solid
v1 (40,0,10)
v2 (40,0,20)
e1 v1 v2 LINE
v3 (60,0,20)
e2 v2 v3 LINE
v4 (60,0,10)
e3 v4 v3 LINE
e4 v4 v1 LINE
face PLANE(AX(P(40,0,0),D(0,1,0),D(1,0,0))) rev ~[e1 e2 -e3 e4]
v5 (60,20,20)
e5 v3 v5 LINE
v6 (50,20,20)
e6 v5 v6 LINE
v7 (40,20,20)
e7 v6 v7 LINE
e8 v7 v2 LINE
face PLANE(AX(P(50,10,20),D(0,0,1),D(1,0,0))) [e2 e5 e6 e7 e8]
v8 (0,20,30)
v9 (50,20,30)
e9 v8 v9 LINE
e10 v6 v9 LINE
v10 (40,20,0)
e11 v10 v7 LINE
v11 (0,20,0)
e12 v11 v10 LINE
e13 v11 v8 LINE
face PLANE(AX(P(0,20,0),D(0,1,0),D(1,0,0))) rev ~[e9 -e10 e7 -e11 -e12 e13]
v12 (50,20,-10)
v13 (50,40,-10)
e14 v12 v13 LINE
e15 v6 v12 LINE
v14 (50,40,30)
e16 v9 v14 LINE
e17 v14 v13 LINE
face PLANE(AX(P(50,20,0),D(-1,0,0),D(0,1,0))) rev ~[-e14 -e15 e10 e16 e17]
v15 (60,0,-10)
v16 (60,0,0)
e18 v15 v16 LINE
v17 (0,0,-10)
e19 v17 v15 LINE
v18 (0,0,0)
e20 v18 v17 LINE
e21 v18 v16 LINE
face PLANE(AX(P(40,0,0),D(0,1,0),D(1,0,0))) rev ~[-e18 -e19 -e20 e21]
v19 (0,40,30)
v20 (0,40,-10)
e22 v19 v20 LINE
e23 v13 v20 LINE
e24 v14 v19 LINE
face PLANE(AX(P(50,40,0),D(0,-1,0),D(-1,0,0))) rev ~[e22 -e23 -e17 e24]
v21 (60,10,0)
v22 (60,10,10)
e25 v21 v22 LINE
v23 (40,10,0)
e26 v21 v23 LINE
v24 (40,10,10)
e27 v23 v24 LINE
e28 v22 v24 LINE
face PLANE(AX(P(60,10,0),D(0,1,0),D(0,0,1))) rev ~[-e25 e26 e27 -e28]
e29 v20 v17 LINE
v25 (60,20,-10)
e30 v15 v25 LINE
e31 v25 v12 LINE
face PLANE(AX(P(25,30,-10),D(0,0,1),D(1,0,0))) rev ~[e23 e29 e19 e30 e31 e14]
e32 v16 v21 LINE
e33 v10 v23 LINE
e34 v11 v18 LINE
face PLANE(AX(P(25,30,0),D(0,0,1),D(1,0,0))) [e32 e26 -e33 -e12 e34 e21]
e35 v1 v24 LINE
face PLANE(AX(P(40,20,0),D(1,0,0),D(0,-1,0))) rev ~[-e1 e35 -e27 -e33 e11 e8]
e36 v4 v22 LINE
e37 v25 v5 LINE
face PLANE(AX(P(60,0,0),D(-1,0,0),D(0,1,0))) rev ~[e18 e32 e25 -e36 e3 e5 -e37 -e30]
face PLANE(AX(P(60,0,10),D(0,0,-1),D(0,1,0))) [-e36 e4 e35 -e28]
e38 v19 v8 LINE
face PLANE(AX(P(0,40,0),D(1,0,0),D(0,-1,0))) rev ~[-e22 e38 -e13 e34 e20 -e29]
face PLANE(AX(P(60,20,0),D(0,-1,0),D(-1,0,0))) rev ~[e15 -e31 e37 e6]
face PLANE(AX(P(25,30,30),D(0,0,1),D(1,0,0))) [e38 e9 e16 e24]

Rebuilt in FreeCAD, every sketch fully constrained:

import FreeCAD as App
import Part
import Sketcher


def add_polygon(sketch, points):
    """Adds a closed chain of lines whose ends are joined by coincident constraints."""
    first, n = sketch.GeometryCount, len(points)
    for a, b in zip(points, points[1:] + points[:1]):
        sketch.addGeometry(Part.LineSegment(App.Vector(*a, 0), App.Vector(*b, 0)), False)
    for i in range(n):
        sketch.addConstraint(Sketcher.Constraint("Coincident", first + i, 2, first + (i + 1) % n, 1))

doc = App.newDocument("Part")
body = doc.addObject("PartDesign::Body", "Body")

# Sketch on XY plane
sketch1 = body.newObject("Sketcher::SketchObject", "Sketch")
sketch1.AttachmentSupport = (doc.getObject("XY_Plane"), [""])
sketch1.MapMode = "FlatFace"
add_polygon(sketch1, [(0, 40), (0, 0), (60, 0), (60, 20), (50, 20), (50, 40)])  # lines 0-5
sketch1.addConstraint(Sketcher.Constraint("Vertical", 0))
sketch1.addConstraint(Sketcher.Constraint("Horizontal", 1))
sketch1.addConstraint(Sketcher.Constraint("Vertical", 2))
sketch1.addConstraint(Sketcher.Constraint("Horizontal", 3))
sketch1.addConstraint(Sketcher.Constraint("Vertical", 4))
sketch1.addConstraint(Sketcher.Constraint("Horizontal", 5))
sketch1.addConstraint(Sketcher.Constraint("Coincident", 0, 2, -1, 1))
sketch1.addConstraint(Sketcher.Constraint("Equal", 2, 4))
sketch1.addConstraint(Sketcher.Constraint("DistanceX", 1, 1, 1, 2, 60.0))
sketch1.addConstraint(Sketcher.Constraint("DistanceX", 3, 2, 3, 1, 10.0))
sketch1.addConstraint(Sketcher.Constraint("DistanceY", 0, 2, 0, 1, 40.0))
pad1 = body.newObject("PartDesign::Pad", "Pad")
pad1.Profile = sketch1
pad1.Length = 10
pad1.Reversed = True

# Sketch on XY plane
sketch2 = body.newObject("Sketcher::SketchObject", "Sketch001")
sketch2.AttachmentSupport = (doc.getObject("XY_Plane"), [""])
sketch2.MapMode = "FlatFace"
add_polygon(sketch2, [(0, 40), (0, 20), (50, 20), (50, 40)])  # lines 0-3
sketch2.addConstraint(Sketcher.Constraint("Vertical", 0))
sketch2.addConstraint(Sketcher.Constraint("Horizontal", 1))
sketch2.addConstraint(Sketcher.Constraint("Vertical", 2))
sketch2.addConstraint(Sketcher.Constraint("Horizontal", 3))
sketch2.addConstraint(Sketcher.Constraint("PointOnObject", 0, 2, -2))
sketch2.addConstraint(Sketcher.Constraint("DistanceX", 1, 1, 1, 2, 50.0))
sketch2.addConstraint(Sketcher.Constraint("DistanceY", 0, 2, 0, 1, 20.0))
sketch2.addConstraint(Sketcher.Constraint("DistanceY", -1, 1, 0, 2, 20.0))
pad2 = body.newObject("PartDesign::Pad", "Pad001")
pad2.Profile = sketch2
pad2.Length = 30

# Sketch on XY plane
sketch3 = body.newObject("Sketcher::SketchObject", "Sketch002")
sketch3.AttachmentSupport = (doc.getObject("XY_Plane"), [""])
sketch3.MapMode = "FlatFace"
add_polygon(sketch3, [(40, 20), (40, 0), (60, 0), (60, 20)])  # lines 0-3
sketch3.addConstraint(Sketcher.Constraint("Vertical", 0))
sketch3.addConstraint(Sketcher.Constraint("Horizontal", 1))
sketch3.addConstraint(Sketcher.Constraint("Vertical", 2))
sketch3.addConstraint(Sketcher.Constraint("Horizontal", 3))
sketch3.addConstraint(Sketcher.Constraint("PointOnObject", 0, 2, -1))
sketch3.addConstraint(Sketcher.Constraint("Equal", 3, 0))
sketch3.addConstraint(Sketcher.Constraint("DistanceX", 1, 1, 1, 2, 20.0))
sketch3.addConstraint(Sketcher.Constraint("DistanceX", -1, 1, 0, 2, 40.0))
pad3 = body.newObject("PartDesign::Pad", "Pad002")
pad3.Profile = sketch3
pad3.Length = 20

# Sketch on YZ plane
sketch4 = body.newObject("Sketcher::SketchObject", "Sketch003")
sketch4.AttachmentSupport = (doc.getObject("YZ_Plane"), [""])
sketch4.MapMode = "FlatFace"
sketch4.AttachmentOffset = App.Placement(App.Vector(0, 0, 60), App.Rotation())
add_polygon(sketch4, [(0, 10), (0, 0), (10, 0), (10, 10)])  # lines 0-3
sketch4.addConstraint(Sketcher.Constraint("Vertical", 0))
sketch4.addConstraint(Sketcher.Constraint("Horizontal", 1))
sketch4.addConstraint(Sketcher.Constraint("Vertical", 2))
sketch4.addConstraint(Sketcher.Constraint("Horizontal", 3))
sketch4.addConstraint(Sketcher.Constraint("Coincident", 0, 2, -1, 1))
sketch4.addConstraint(Sketcher.Constraint("Equal", 3, 0))
sketch4.addConstraint(Sketcher.Constraint("DistanceX", 1, 1, 1, 2, 10.0))
pocket1 = body.newObject("PartDesign::Pocket", "Pocket")
pocket1.Profile = sketch4
pocket1.Length = 25

doc.recompute()
